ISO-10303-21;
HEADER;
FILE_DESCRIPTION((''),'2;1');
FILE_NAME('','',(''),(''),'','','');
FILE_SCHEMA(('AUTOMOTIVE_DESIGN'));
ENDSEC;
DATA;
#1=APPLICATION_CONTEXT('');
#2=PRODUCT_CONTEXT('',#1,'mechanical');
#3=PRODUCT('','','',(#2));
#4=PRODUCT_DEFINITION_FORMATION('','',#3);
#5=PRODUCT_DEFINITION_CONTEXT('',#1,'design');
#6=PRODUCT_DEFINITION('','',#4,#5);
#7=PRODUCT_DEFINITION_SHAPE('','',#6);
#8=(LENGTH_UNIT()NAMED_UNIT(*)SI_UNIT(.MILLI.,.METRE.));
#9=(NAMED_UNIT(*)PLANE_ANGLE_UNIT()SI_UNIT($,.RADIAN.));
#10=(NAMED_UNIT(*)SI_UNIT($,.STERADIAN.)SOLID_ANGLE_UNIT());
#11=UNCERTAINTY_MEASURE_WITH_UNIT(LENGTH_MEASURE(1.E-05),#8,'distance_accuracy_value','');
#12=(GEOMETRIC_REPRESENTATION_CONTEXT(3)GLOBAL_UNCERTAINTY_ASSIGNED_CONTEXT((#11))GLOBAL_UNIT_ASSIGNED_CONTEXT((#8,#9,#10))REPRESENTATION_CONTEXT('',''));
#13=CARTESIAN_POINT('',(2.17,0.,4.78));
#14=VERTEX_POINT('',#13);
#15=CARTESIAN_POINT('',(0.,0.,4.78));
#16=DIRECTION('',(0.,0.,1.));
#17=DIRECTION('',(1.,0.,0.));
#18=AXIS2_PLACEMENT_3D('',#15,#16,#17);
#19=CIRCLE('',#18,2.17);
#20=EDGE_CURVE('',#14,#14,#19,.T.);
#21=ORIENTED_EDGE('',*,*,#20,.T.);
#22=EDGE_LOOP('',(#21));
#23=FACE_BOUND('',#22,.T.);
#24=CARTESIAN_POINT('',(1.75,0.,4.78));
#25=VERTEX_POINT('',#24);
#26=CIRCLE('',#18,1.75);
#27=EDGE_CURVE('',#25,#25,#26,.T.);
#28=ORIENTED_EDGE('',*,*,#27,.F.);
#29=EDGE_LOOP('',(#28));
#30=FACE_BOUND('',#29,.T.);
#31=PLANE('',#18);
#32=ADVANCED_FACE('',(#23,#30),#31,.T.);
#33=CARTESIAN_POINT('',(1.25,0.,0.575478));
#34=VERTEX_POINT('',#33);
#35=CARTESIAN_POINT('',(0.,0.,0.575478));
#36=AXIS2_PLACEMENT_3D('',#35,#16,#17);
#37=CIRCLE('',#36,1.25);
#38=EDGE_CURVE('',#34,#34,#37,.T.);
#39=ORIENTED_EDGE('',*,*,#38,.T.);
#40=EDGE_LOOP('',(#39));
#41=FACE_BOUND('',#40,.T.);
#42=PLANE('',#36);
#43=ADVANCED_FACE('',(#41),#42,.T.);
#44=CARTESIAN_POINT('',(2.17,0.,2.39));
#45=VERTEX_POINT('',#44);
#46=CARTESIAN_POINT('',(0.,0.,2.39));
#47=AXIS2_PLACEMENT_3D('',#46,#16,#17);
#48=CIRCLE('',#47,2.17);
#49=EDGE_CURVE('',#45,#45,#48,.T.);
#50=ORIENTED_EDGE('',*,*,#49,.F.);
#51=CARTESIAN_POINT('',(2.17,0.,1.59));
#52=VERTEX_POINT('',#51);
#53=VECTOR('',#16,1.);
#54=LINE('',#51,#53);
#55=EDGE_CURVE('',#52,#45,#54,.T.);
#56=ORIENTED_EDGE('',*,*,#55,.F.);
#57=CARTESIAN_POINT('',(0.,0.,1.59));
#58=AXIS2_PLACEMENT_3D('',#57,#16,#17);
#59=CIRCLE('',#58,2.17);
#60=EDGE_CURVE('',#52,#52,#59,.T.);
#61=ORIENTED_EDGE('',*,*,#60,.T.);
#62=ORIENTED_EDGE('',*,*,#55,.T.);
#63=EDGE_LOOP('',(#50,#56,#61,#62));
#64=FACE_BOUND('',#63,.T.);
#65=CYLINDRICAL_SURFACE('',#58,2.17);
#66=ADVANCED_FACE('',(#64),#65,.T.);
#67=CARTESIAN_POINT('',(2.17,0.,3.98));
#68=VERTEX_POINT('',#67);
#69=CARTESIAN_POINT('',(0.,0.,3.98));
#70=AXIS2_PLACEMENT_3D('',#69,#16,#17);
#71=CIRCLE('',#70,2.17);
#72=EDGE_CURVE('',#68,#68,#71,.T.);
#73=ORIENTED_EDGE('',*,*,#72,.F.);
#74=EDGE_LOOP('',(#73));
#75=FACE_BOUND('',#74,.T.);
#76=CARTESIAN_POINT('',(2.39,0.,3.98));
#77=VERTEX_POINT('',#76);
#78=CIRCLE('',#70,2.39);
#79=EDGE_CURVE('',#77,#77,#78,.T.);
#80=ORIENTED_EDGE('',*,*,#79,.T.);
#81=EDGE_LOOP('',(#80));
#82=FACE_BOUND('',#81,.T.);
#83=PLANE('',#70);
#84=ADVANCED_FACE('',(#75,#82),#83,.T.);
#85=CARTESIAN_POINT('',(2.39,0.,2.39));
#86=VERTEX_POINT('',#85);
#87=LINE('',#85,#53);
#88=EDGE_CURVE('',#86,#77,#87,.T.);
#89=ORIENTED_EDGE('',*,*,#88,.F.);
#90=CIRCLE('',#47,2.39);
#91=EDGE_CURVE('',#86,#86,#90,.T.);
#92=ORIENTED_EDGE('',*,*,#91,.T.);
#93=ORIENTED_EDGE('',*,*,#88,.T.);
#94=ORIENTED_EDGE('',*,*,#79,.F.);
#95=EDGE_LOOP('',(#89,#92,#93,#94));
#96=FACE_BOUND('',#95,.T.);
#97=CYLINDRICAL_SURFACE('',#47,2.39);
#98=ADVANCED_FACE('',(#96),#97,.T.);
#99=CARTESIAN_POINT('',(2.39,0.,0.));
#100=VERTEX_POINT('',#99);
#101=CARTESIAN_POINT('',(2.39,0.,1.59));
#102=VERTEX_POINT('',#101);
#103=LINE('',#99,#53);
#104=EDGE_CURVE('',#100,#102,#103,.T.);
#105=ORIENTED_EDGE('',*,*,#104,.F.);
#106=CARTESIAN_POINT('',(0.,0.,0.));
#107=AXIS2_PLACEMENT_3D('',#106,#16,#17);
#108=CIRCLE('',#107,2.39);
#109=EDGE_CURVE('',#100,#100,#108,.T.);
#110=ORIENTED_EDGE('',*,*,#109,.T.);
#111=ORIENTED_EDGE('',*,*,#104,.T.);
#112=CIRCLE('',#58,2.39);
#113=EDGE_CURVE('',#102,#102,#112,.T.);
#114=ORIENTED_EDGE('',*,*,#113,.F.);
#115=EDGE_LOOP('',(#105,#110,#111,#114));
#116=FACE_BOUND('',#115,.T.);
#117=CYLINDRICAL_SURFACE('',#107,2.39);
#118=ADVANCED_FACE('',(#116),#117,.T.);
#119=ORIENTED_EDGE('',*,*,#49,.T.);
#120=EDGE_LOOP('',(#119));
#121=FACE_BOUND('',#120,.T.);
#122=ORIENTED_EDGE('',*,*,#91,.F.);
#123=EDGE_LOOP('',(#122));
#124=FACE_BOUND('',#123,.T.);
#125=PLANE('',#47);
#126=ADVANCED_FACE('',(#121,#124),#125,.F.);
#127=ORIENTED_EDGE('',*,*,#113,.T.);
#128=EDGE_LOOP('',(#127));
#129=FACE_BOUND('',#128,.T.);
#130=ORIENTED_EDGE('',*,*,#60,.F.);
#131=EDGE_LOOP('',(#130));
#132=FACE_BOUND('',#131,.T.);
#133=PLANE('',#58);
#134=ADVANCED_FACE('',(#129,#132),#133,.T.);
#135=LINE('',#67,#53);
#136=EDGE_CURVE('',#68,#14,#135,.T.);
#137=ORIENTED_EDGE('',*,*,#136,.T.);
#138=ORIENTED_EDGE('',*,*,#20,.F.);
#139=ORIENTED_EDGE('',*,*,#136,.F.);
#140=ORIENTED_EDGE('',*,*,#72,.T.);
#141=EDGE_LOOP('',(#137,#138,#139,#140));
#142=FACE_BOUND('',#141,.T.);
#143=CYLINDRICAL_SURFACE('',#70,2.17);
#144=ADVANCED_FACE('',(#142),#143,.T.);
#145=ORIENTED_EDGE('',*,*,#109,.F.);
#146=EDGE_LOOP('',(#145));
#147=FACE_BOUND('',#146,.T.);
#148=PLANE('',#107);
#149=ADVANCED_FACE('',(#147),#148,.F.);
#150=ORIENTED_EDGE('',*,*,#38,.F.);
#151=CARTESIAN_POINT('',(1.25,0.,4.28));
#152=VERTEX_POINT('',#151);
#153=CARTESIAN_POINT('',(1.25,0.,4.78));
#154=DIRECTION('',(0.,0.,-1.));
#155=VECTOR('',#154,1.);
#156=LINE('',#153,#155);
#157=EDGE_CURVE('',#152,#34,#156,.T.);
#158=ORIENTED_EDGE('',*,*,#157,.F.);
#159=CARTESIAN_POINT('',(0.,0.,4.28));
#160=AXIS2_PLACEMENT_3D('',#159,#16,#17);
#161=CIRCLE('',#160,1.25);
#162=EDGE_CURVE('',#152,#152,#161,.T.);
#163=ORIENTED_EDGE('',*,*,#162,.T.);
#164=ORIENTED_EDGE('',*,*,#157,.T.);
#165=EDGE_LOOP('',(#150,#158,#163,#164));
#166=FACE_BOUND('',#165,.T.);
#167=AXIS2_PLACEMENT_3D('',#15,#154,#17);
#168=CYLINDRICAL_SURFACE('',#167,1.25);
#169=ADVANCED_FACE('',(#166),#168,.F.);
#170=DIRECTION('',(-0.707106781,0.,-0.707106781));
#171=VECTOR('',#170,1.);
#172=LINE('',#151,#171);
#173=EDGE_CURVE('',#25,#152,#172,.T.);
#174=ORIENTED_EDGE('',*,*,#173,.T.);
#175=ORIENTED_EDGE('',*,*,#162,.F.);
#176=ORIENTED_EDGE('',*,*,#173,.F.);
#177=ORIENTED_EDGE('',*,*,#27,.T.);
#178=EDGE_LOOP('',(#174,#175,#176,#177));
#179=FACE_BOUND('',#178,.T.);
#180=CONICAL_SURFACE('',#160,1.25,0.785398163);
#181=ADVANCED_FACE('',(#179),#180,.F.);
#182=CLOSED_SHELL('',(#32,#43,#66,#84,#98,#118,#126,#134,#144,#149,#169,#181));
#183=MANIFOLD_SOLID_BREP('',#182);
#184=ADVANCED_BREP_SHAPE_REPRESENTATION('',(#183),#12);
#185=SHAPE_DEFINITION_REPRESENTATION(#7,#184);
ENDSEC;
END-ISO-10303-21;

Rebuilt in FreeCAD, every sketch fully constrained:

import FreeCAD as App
import Part
import Sketcher


def edges_at(feature, points):
    """Names of the edges that pass closest to the given points."""
    edges = feature.Shape.Edges
    near = lambda p: min(range(len(edges)), key=lambda i: edges[i].distToShape(Part.Vertex(*p))[0])
    return sorted({f"Edge{near(p) + 1}" for p in points})

doc = App.newDocument("Part")
params = doc.addObject("Spreadsheet::Sheet", "Params")
for row, (alias, value) in enumerate([
    ("sketch1_height", "0.8 mm"),
    ("sketch1_width", "2.39 mm"),
    ("sketch1_width2", "0.22 mm"),
    ("sketch1_width3", "0.92 mm"),
    ("sketch1_height2", "1.59 mm"),
    ("revolution_angle", "360 deg"),
    ("chamfer_size", "0.5 mm"),
], start=1):
    params.set(f"A{row}", alias)
    params.set(f"B{row}", "=" + value)
    params.setAlias(f"B{row}", alias)

body = doc.addObject("PartDesign::Body", "Body")

# Sketch on XZ plane
sketch1 = doc.addObject("Sketcher::SketchObject", "Sketch")
body.addObject(sketch1)
sketch1.AttachmentSupport = (doc.XZ_Plane, [""])
sketch1.MapMode = "FlatFace"
sketch1.addGeometry([
    Part.LineSegment(App.Vector(0, 0.58, 0), App.Vector(0, 0, 0)),  # 0
    Part.LineSegment(App.Vector(0, 0, 0), App.Vector(2.39, 0, 0)),  # 1
    Part.LineSegment(App.Vector(2.39, 0, 0), App.Vector(2.39, 1.59, 0)),  # 2
    Part.LineSegment(App.Vector(2.39, 1.59, 0), App.Vector(2.17, 1.59, 0)),  # 3
    Part.LineSegment(App.Vector(2.17, 1.59, 0), App.Vector(2.17, 2.39, 0)),  # 4
    Part.LineSegment(App.Vector(2.17, 2.39, 0), App.Vector(2.39, 2.39, 0)),  # 5
    Part.LineSegment(App.Vector(2.39, 2.39, 0), App.Vector(2.39, 3.98, 0)),  # 6
    Part.LineSegment(App.Vector(2.39, 3.98, 0), App.Vector(2.17, 3.98, 0)),  # 7
    Part.LineSegment(App.Vector(2.17, 3.98, 0), App.Vector(2.17, 4.78, 0)),  # 8
    Part.LineSegment(App.Vector(2.17, 4.78, 0), App.Vector(1.25, 4.78, 0)),  # 9
    Part.LineSegment(App.Vector(1.25, 4.78, 0), App.Vector(1.25, 0.58, 0)),  # 10
    Part.LineSegment(App.Vector(1.25, 0.58, 0), App.Vector(0, 0.58, 0)),  # 11
], False)
sketch1.addConstraint([
    Sketcher.Constraint("Coincident", 0, 2, 1, 1),
    Sketcher.Constraint("Coincident", 1, 2, 2, 1),
    Sketcher.Constraint("Coincident", 2, 2, 3, 1),
    Sketcher.Constraint("Coincident", 3, 2, 4, 1),
    Sketcher.Constraint("Coincident", 4, 2, 5, 1),
    Sketcher.Constraint("Coincident", 5, 2, 6, 1),
    Sketcher.Constraint("Coincident", 6, 2, 7, 1),
    Sketcher.Constraint("Coincident", 7, 2, 8, 1),
    Sketcher.Constraint("Coincident", 8, 2, 9, 1),
    Sketcher.Constraint("Coincident", 9, 2, 10, 1),
    Sketcher.Constraint("Coincident", 10, 2, 11, 1),
    Sketcher.Constraint("Coincident", 11, 2, 0, 1),
    Sketcher.Constraint("Vertical", 0),
    Sketcher.Constraint("Horizontal", 1),
    Sketcher.Constraint("Vertical", 2),
    Sketcher.Constraint("Horizontal", 3),
    Sketcher.Constraint("Vertical", 4),
    Sketcher.Constraint("Horizontal", 5),
    Sketcher.Constraint("Vertical", 6),
    Sketcher.Constraint("Horizontal", 7),
    Sketcher.Constraint("Vertical", 8),
    Sketcher.Constraint("Horizontal", 9),
    Sketcher.Constraint("Vertical", 10),
    Sketcher.Constraint("Horizontal", 11),
    Sketcher.Constraint("Coincident", 0, 2, -1, 1),
    Sketcher.Constraint("Vertical", 2, 2, 5, 2),
    Sketcher.Constraint("Vertical", 4, 2, 7, 2),
    Sketcher.Constraint("Equal", 2, 6),
    Sketcher.Constraint("Equal", 4, 8),
    Sketcher.Constraint("DistanceY", 4, 1, 4, 2, 0.8),
    Sketcher.Constraint("DistanceX", 1, 1, 1, 2, 2.39),
    Sketcher.Constraint("DistanceX", 3, 2, 3, 1, 0.22),
    Sketcher.Constraint("DistanceX", 9, 2, 9, 1, 0.92),
    Sketcher.Constraint("DistanceY", 2, 1, 2, 2, 1.59),
    Sketcher.Constraint("DistanceY", 0, 2, 0, 1, 0.575478),
])
sketch1.setExpression("Constraints[29]", "Params.sketch1_height")
sketch1.setExpression("Constraints[30]", "Params.sketch1_width")
sketch1.setExpression("Constraints[31]", "Params.sketch1_width2")
sketch1.setExpression("Constraints[32]", "Params.sketch1_width3")
sketch1.setExpression("Constraints[33]", "Params.sketch1_height2")
revolution = doc.addObject("PartDesign::Revolution", "Revolution")
body.addObject(revolution)
revolution.Profile = sketch1
revolution.ReferenceAxis = (sketch1, ["V_Axis"])
revolution.setExpression("Angle", "Params.revolution_angle")
doc.recompute()

chamfer = doc.addObject("PartDesign::Chamfer", "Chamfer")
body.addObject(chamfer)
chamfer.Base = (revolution, edges_at(revolution, [(-1.25, 0, 4.78)]))
chamfer.setExpression("Size", "Params.chamfer_size")

doc.recompute()
